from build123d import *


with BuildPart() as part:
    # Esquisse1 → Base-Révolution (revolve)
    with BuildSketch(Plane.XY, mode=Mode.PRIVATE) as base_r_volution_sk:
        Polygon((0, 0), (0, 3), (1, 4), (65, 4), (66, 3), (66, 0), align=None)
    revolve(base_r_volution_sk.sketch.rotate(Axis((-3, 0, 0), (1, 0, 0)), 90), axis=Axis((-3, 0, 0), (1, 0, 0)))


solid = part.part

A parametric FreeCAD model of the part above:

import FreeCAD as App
import Part
import Sketcher


def add_polygon(sketch, points):
    """Adds a closed chain of lines whose ends are joined by coincident constraints."""
    first, n = sketch.GeometryCount, len(points)
    for a, b in zip(points, points[1:] + points[:1]):
        sketch.addGeometry(Part.LineSegment(App.Vector(*a, 0), App.Vector(*b, 0)), False)
    for i in range(n):
        sketch.addConstraint(Sketcher.Constraint("Coincident", first + i, 2, first + (i + 1) % n, 1))

doc = App.newDocument("Part")
body = doc.addObject("PartDesign::Body", "Body")

sketch1 = doc.addObject("Sketcher::SketchObject", "Sketch")
body.addObject(sketch1)
sketch1.AttachmentSupport = (doc.XY_Plane, [""])
sketch1.MapMode = "FlatFace"
add_polygon(sketch1, [(0, 3), (0, 0), (66, 0), (66, 3), (65, 4), (1, 4)])
sketch1.addConstraint(Sketcher.Constraint("Vertical", 0))
sketch1.addConstraint(Sketcher.Constraint("Horizontal", 1))
sketch1.addConstraint(Sketcher.Constraint("Vertical", 2))
sketch1.addConstraint(Sketcher.Constraint("Horizontal", 4))
sketch1.addConstraint(Sketcher.Constraint("Coincident", 0, 2, -1, 1))
sketch1.addConstraint(Sketcher.Constraint("Perpendicular", 3, 5))
sketch1.addConstraint(Sketcher.Constraint("Horizontal", 2, 2, 5, 2))
sketch1.addConstraint(Sketcher.Constraint("Equal", 3, 5))
sketch1.addConstraint(Sketcher.Constraint("DistanceX", 1, 1, 1, 2, 66.0))
sketch1.addConstraint(Sketcher.Constraint("DistanceX", 4, 2, 4, 1, 64.0))
sketch1.addConstraint(Sketcher.Constraint("DistanceY", 0, 2, 0, 1, 3.0))
revolution = doc.addObject("PartDesign::Revolution", "Revolution")
body.addObject(revolution)
revolution.Profile = sketch1
revolution.ReferenceAxis = (sketch1, ["H_Axis"])
revolution.Angle = 360

doc.recompute()
